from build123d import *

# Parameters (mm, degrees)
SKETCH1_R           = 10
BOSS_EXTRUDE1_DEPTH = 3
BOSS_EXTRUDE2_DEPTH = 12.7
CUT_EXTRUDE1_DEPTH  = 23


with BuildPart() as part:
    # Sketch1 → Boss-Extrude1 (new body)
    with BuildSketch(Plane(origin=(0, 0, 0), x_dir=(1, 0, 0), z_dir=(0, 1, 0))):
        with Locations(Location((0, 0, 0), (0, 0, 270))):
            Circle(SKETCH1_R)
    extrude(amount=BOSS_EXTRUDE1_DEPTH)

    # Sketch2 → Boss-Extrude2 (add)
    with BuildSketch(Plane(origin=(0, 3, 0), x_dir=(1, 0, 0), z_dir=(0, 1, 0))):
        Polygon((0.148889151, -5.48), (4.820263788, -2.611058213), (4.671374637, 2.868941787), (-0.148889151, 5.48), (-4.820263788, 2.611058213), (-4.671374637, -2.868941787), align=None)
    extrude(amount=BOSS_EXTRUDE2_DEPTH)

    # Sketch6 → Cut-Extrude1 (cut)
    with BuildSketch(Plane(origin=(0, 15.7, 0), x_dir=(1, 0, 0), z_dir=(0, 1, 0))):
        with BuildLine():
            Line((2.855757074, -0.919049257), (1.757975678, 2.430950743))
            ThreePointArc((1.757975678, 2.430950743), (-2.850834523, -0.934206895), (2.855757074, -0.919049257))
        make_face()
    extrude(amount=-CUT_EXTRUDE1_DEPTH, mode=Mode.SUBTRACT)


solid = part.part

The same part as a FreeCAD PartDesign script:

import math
import FreeCAD as App
import Part
import Sketcher
Q = App.Units.Quantity


def add_polygon(sketch, points):
    """Adds a closed chain of lines whose ends are joined by coincident constraints."""
    first, n = sketch.GeometryCount, len(points)
    for a, b in zip(points, points[1:] + points[:1]):
        sketch.addGeometry(Part.LineSegment(App.Vector(*a, 0), App.Vector(*b, 0)), False)
    for i in range(n):
        sketch.addConstraint(Sketcher.Constraint("Coincident", first + i, 2, first + (i + 1) % n, 1))

doc = App.newDocument("Part")
body = doc.addObject("PartDesign::Body", "Body")

# Sketch on XZ plane
sketch1 = body.newObject("Sketcher::SketchObject", "Sketch")
sketch1.AttachmentSupport = (doc.getObject("XZ_Plane"), [""])
sketch1.MapMode = "FlatFace"
sketch1.addGeometry(Part.Circle(App.Vector(0, 0, 0), App.Vector(0, 0, 1), 10), False)
sketch1.addConstraint(Sketcher.Constraint("Coincident", 0, 3, -1, 1))
sketch1.addConstraint(Sketcher.Constraint("Diameter", 0, Q("20 mm")))
pad1 = body.newObject("PartDesign::Pad", "Pad")
pad1.Profile = sketch1
pad1.Length = 3
pad1.Reversed = True

# Sketch on XZ plane
sketch2 = body.newObject("Sketcher::SketchObject", "Sketch001")
sketch2.AttachmentSupport = (doc.getObject("XZ_Plane"), [""])
sketch2.MapMode = "FlatFace"
sketch2.AttachmentOffset = App.Placement(App.Vector(0, 0, -3), App.Rotation())
add_polygon(sketch2, [(0.148889, 5.48), (4.820264, 2.611058), (4.671375, -2.868942), (-0.148889, -5.48), (-4.820264, -2.611058), (-4.671375, 2.868942)])  # lines 0-5
sketch2.addConstraint(Sketcher.Constraint("Symmetric", 0, 2, 3, 2, -1, 1))
sketch2.addConstraint(Sketcher.Constraint("Symmetric", 1, 2, 4, 2, -1, 1))
sketch2.addConstraint(Sketcher.Constraint("Symmetric", 2, 2, 5, 2, -1, 1))
sketch2.addConstraint(Sketcher.Constraint("Equal", 0, 1))
sketch2.addConstraint(Sketcher.Constraint("Equal", 1, 2))
sketch2.addConstraint(Sketcher.Constraint("DistanceY", 2, 2, -1, 1, Q("5.48 mm")))
sketch2.addConstraint(Sketcher.Constraint("DistanceY", 1, 2, 0, 2, Q("5.48 mm")))
sketch2.addConstraint(Sketcher.Constraint("DistanceY", -1, 1, 0, 2, Q("2.611058 mm")))
sketch2.addConstraint(Sketcher.Constraint("DistanceX", 2, 2, -1, 1, Q("0.148889 mm")))
pad2 = body.newObject("PartDesign::Pad", "Pad001")
pad2.Profile = sketch2
pad2.Length = 12.7
pad2.Reversed = True

# Sketch on XZ plane
sketch3 = body.newObject("Sketcher::SketchObject", "Sketch002")
sketch3.AttachmentSupport = (doc.getObject("XZ_Plane"), [""])
sketch3.MapMode = "FlatFace"
sketch3.AttachmentOffset = App.Placement(App.Vector(0, 0, -15.7), App.Rotation())
sketch3.addGeometry(Part.LineSegment(App.Vector(2.855757, 0.919049, 0), App.Vector(1.757976, -2.430951, 0)), False)
sketch3.addGeometry(Part.ArcOfCircle(Part.Circle(App.Vector(0, 0, 0), App.Vector(0, 0, 1), 3), math.radians(17.839387), math.radians(305.873094)), False)
sketch3.addConstraint(Sketcher.Constraint("Coincident", 0, 1, 1, 1))
sketch3.addConstraint(Sketcher.Constraint("Coincident", 1, 2, 0, 2))
sketch3.addConstraint(Sketcher.Constraint("Coincident", 1, 3, -1, 1))
sketch3.addConstraint(Sketcher.Constraint("Radius", 1, Q("3 mm")))
sketch3.addConstraint(Sketcher.Constraint("DistanceY", 1, 2, 0, 1, Q("3.35 mm")))
sketch3.addConstraint(Sketcher.Constraint("DistanceY", -1, 1, 0, 1, Q("0.919049 mm")))
pocket1 = body.newObject("PartDesign::Pocket", "Pocket")
pocket1.Profile = sketch3
pocket1.Length = 23
pocket1.Reversed = True

doc.recompute()
